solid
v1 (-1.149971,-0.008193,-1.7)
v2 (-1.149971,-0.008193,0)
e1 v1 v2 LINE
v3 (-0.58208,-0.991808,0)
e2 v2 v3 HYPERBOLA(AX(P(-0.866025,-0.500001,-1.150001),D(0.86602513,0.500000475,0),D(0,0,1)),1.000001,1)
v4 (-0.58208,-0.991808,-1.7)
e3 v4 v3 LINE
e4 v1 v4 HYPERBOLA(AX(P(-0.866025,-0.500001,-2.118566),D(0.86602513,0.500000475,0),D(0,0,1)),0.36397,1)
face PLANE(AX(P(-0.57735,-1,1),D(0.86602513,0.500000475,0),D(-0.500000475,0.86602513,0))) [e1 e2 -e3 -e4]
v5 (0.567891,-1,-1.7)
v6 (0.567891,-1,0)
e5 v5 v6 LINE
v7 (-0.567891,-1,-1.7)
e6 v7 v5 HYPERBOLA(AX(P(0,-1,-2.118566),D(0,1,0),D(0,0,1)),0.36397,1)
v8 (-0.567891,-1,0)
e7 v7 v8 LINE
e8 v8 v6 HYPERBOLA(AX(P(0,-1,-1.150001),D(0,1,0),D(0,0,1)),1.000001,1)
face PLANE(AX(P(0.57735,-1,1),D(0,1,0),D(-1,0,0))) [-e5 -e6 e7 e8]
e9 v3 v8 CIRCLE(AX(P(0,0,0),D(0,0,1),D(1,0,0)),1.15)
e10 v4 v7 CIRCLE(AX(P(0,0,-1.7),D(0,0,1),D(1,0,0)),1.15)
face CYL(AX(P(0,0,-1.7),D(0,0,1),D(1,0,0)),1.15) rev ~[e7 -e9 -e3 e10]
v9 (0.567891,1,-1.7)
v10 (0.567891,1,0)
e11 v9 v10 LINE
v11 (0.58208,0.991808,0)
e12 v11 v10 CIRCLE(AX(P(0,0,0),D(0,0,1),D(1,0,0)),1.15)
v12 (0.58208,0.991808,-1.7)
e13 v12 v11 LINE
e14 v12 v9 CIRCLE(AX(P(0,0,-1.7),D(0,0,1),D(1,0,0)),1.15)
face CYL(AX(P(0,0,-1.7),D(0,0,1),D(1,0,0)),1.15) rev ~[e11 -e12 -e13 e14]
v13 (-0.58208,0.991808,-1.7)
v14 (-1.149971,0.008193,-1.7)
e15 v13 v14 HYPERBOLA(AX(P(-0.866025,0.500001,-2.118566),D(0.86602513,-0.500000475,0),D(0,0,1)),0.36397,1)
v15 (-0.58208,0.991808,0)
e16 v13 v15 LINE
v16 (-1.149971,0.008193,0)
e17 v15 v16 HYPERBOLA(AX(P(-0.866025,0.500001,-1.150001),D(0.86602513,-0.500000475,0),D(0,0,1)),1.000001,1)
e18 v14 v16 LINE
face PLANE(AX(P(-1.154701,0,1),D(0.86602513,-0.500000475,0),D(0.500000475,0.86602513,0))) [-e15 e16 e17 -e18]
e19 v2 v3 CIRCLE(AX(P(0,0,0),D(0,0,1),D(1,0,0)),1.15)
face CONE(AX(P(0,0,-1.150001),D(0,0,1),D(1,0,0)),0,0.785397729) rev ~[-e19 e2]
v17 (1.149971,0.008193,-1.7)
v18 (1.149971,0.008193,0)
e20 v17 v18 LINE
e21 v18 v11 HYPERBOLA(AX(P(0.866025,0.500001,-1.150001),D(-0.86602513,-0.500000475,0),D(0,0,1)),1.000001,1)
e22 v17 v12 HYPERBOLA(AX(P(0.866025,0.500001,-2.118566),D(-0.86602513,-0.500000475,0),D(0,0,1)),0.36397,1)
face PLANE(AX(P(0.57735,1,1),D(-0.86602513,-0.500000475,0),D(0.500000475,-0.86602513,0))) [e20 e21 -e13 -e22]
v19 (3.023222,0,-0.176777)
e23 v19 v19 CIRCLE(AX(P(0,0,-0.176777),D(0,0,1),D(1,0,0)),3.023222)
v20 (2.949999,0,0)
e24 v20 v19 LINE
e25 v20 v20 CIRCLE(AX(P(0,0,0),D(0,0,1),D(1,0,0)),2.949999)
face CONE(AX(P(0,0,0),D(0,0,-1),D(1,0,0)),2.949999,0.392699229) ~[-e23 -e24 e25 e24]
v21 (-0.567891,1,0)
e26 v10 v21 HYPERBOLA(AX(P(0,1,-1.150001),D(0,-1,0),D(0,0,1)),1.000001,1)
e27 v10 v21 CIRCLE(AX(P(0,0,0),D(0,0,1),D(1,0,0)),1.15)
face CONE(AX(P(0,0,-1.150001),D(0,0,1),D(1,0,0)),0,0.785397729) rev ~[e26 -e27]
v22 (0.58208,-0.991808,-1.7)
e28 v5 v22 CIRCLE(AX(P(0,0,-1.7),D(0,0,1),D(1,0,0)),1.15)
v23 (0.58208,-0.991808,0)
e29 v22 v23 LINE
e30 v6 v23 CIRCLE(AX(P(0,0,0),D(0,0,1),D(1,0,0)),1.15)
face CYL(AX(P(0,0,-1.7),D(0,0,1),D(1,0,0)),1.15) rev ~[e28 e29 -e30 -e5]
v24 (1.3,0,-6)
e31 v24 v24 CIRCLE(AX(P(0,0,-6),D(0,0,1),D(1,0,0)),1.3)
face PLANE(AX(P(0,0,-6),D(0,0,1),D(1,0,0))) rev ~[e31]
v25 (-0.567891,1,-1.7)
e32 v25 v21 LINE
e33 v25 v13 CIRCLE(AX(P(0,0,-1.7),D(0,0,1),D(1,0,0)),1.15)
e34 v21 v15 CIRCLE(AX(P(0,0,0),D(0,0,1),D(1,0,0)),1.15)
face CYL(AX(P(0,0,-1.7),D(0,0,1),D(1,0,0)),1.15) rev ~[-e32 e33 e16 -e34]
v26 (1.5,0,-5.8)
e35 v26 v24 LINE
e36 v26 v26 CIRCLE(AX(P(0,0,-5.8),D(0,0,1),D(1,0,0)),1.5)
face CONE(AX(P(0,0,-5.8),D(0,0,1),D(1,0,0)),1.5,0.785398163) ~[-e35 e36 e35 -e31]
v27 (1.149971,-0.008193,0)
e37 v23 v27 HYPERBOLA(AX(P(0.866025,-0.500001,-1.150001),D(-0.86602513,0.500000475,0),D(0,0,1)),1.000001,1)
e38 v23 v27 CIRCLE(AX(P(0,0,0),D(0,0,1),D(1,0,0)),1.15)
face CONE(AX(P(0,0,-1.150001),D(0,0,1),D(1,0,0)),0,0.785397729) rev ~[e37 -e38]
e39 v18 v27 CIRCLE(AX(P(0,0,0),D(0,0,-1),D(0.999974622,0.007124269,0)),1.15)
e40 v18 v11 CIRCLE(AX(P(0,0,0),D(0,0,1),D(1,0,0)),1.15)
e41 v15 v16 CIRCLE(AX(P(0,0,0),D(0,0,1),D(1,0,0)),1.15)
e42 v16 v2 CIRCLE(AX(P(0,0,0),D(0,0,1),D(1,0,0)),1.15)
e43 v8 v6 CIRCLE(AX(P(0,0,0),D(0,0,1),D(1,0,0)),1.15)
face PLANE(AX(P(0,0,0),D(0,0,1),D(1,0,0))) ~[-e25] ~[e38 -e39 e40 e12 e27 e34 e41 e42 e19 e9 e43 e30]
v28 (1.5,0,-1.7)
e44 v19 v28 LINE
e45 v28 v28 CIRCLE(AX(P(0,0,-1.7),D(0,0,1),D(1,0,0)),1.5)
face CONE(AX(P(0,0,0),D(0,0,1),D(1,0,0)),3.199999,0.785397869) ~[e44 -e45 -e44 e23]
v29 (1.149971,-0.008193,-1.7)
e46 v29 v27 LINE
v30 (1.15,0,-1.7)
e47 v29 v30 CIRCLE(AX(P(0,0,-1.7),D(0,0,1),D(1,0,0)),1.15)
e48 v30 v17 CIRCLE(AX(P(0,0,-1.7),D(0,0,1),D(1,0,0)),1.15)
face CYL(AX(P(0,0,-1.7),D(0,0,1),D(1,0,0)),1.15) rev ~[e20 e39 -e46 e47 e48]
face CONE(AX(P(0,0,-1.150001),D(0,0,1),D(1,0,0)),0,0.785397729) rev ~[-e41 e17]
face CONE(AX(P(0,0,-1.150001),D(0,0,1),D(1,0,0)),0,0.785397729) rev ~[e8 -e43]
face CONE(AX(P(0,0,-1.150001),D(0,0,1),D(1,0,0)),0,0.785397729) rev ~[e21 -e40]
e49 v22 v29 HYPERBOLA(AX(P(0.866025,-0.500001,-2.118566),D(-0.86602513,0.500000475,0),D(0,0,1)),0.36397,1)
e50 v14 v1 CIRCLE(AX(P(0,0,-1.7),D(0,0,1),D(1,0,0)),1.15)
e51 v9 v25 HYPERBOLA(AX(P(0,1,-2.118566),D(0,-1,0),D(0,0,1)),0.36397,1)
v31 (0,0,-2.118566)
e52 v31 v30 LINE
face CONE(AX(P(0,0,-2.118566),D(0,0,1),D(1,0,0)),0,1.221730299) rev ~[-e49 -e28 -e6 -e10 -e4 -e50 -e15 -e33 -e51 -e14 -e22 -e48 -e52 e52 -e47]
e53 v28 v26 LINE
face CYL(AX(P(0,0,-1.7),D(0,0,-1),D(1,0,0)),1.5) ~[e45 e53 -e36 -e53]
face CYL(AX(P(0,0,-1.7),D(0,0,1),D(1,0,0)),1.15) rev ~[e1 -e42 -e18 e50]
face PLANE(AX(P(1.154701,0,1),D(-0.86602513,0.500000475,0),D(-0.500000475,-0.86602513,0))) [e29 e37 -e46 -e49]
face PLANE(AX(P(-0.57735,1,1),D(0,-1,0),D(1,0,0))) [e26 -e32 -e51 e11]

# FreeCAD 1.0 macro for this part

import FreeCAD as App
import Part
import Sketcher
Q = App.Units.Quantity


def edges_at(feature, points):
    """Names of the edges that pass closest to the given points."""
    edges = feature.Shape.Edges
    near = lambda p: min(range(len(edges)), key=lambda i: edges[i].distToShape(Part.Vertex(*p))[0])
    return sorted({f"Edge{near(p) + 1}" for p in points})

doc = App.newDocument("Part")
body = doc.addObject("PartDesign::Body", "Body")

# Sketch on XZ plane
sketch1 = body.newObject("Sketcher::SketchObject", "Sketch")
sketch1.AttachmentSupport = (doc.getObject("XZ_Plane"), [""])
sketch1.MapMode = "FlatFace"
sketch1.addGeometry([
    Part.LineSegment(App.Vector(0, -2.1, 0), App.Vector(1.1, -1.7, 0)),
    Part.LineSegment(App.Vector(1.1, -1.7, 0), App.Vector(1.1, 1, 0)),
    Part.LineSegment(App.Vector(1.1, 1, 0), App.Vector(0, 1, 0)),
    Part.LineSegment(App.Vector(0, 1, 0), App.Vector(0, -2.1, 0)),
], False)
sketch1.addConstraint([
    Sketcher.Constraint("Coincident", 0, 2, 1, 1),
    Sketcher.Constraint("Coincident", 1, 2, 2, 1),
    Sketcher.Constraint("Coincident", 2, 2, 3, 1),
    Sketcher.Constraint("Coincident", 3, 2, 0, 1),
    Sketcher.Constraint("Vertical", 1),
    Sketcher.Constraint("Horizontal", 2),
    Sketcher.Constraint("Vertical", 3),
    Sketcher.Constraint("PointOnObject", 2, 2, -2),
    Sketcher.Constraint("Angle", 0, Q("20.00001 deg")),
    Sketcher.Constraint("DistanceY", 1, 1, 1, 2, 2.7),
    Sketcher.Constraint("DistanceY", -1, 1, 1, 2, 1.0),
    Sketcher.Constraint("DistanceX", 2, 2, 2, 1, 1.15),
])
revolution = body.newObject("PartDesign::Revolution", "Revolution")
revolution.Profile = sketch1
revolution.ReferenceAxis = (sketch1, ["V_Axis"])
revolution.Angle = 360

# Sketch on XY plane
sketch2 = body.newObject("Sketcher::SketchObject", "Sketch001")
sketch2.AttachmentSupport = (doc.getObject("XY_Plane"), [""])
sketch2.MapMode = "FlatFace"
sketch2.AttachmentOffset = App.Placement(App.Vector(0, 0, 1), App.Rotation())
sketch2.addGeometry([
    Part.Circle(App.Vector(0, 0, 0), App.Vector(0, 0, 1), 2.1),  # 0
    Part.LineSegment(App.Vector(1.2, 0, 0), App.Vector(0.6, -1, 0)),  # 1
    Part.LineSegment(App.Vector(0.6, -1, 0), App.Vector(-0.6, -1, 0)),  # 2
    Part.LineSegment(App.Vector(-0.6, -1, 0), App.Vector(-1.2, 0, 0)),  # 3
    Part.LineSegment(App.Vector(-1.2, 0, 0), App.Vector(-0.6, 1, 0)),  # 4
    Part.LineSegment(App.Vector(-0.6, 1, 0), App.Vector(0.6, 1, 0)),  # 5
    Part.LineSegment(App.Vector(0.6, 1, 0), App.Vector(1.2, 0, 0)),  # 6
], False)
sketch2.addConstraint([
    Sketcher.Constraint("Coincident", 1, 2, 2, 1),
    Sketcher.Constraint("Coincident", 2, 2, 3, 1),
    Sketcher.Constraint("Coincident", 3, 2, 4, 1),
    Sketcher.Constraint("Coincident", 4, 2, 5, 1),
    Sketcher.Constraint("Coincident", 5, 2, 6, 1),
    Sketcher.Constraint("Coincident", 6, 2, 1, 1),
    Sketcher.Constraint("Horizontal", 2),
    Sketcher.Constraint("Horizontal", 5),
    Sketcher.Constraint("Coincident", 0, 3, -1, 1),
    Sketcher.Constraint("Symmetric", 1, 2, 4, 2, -1, 1),
    Sketcher.Constraint("Symmetric", 3, 2, 6, 2, -1, 1),
    Sketcher.Constraint("PointOnObject", 3, 2, -1),
    Sketcher.Constraint("Parallel", 3, 6),
    Sketcher.Constraint("Vertical", 2, 2, 4, 2),
    Sketcher.Constraint("Diameter", 0, 4.3),
    Sketcher.Constraint("DistanceY", 1, 2, -1, 1, 1.0),
    Sketcher.Constraint("DistanceX", 2, 2, 2, 1, 1.1547),
    Sketcher.Constraint("Distance", 1, 1.154701),
])
pocket1 = body.newObject("PartDesign::Pocket", "Pocket")
pocket1.Profile = sketch2
pocket1.Type = "ThroughAll"
body2 = doc.addObject("PartDesign::Body", "Body001")

# Sketch on XZ plane
sketch3 = body2.newObject("Sketcher::SketchObject", "Sketch002")
sketch3.AttachmentSupport = (doc.getObject("XZ_Plane001"), [""])
sketch3.MapMode = "FlatFace"
sketch3.addGeometry([
    Part.LineSegment(App.Vector(3.2, 0, 0), App.Vector(1.1, 0, 0)),  # 0
    Part.LineSegment(App.Vector(1.1, 0, 0), App.Vector(0, -1.2, 0)),  # 1
    Part.LineSegment(App.Vector(0, -1.2, 0), App.Vector(0, -6, 0)),  # 2
    Part.LineSegment(App.Vector(0, -6, 0), App.Vector(1.5, -6, 0)),  # 3
    Part.LineSegment(App.Vector(1.5, -6, 0), App.Vector(1.5, -1.7, 0)),  # 4
    Part.LineSegment(App.Vector(1.5, -1.7, 0), App.Vector(3.2, 0, 0)),  # 5
], False)
sketch3.addConstraint([
    Sketcher.Constraint("Coincident", 0, 2, 1, 1),
    Sketcher.Constraint("Coincident", 1, 2, 2, 1),
    Sketcher.Constraint("Coincident", 2, 2, 3, 1),
    Sketcher.Constraint("Coincident", 3, 2, 4, 1),
    Sketcher.Constraint("Coincident", 4, 2, 5, 1),
    Sketcher.Constraint("Coincident", 5, 2, 0, 1),
    Sketcher.Constraint("Horizontal", 0),
    Sketcher.Constraint("Vertical", 2),
    Sketcher.Constraint("Horizontal", 3),
    Sketcher.Constraint("Vertical", 4),
    Sketcher.Constraint("PointOnObject", 0, 2, -1),
    Sketcher.Constraint("PointOnObject", 1, 2, -2),
    Sketcher.Constraint("Parallel", 1, 5),
    Sketcher.Constraint("Angle", 5, Q("45.000017 deg")),
    Sketcher.Constraint("DistanceX", 3, 1, 3, 2, 1.5),
    Sketcher.Constraint("DistanceY", 4, 1, 4, 2, 4.3),
    Sketcher.Constraint("DistanceY", 2, 2, -1, 1, 6.0),
    Sketcher.Constraint("DistanceX", 0, 2, 0, 1, 2.049999),
])
revolution2 = body2.newObject("PartDesign::Revolution", "Revolution001")
revolution2.Profile = sketch3
revolution2.ReferenceAxis = (sketch3, ["V_Axis"])
revolution2.Angle = 360
doc.recompute()

boolean = body2.newObject("PartDesign::Boolean", "Boolean")
boolean.Type = "Cut"
boolean.addObjects([body])
doc.recompute()

chamfer = body2.newObject("PartDesign::Chamfer", "Chamfer")
chamfer.Base = (boolean, edges_at(boolean, [(-3.2, 0, 0)]))
chamfer.Size = 0.25
doc.recompute()

chamfer2 = body2.newObject("PartDesign::Chamfer", "Chamfer001")
chamfer2.Base = (chamfer, edges_at(chamfer, [(-1.5, 0, -6)]))
chamfer2.Size = 0.2

doc.recompute()
